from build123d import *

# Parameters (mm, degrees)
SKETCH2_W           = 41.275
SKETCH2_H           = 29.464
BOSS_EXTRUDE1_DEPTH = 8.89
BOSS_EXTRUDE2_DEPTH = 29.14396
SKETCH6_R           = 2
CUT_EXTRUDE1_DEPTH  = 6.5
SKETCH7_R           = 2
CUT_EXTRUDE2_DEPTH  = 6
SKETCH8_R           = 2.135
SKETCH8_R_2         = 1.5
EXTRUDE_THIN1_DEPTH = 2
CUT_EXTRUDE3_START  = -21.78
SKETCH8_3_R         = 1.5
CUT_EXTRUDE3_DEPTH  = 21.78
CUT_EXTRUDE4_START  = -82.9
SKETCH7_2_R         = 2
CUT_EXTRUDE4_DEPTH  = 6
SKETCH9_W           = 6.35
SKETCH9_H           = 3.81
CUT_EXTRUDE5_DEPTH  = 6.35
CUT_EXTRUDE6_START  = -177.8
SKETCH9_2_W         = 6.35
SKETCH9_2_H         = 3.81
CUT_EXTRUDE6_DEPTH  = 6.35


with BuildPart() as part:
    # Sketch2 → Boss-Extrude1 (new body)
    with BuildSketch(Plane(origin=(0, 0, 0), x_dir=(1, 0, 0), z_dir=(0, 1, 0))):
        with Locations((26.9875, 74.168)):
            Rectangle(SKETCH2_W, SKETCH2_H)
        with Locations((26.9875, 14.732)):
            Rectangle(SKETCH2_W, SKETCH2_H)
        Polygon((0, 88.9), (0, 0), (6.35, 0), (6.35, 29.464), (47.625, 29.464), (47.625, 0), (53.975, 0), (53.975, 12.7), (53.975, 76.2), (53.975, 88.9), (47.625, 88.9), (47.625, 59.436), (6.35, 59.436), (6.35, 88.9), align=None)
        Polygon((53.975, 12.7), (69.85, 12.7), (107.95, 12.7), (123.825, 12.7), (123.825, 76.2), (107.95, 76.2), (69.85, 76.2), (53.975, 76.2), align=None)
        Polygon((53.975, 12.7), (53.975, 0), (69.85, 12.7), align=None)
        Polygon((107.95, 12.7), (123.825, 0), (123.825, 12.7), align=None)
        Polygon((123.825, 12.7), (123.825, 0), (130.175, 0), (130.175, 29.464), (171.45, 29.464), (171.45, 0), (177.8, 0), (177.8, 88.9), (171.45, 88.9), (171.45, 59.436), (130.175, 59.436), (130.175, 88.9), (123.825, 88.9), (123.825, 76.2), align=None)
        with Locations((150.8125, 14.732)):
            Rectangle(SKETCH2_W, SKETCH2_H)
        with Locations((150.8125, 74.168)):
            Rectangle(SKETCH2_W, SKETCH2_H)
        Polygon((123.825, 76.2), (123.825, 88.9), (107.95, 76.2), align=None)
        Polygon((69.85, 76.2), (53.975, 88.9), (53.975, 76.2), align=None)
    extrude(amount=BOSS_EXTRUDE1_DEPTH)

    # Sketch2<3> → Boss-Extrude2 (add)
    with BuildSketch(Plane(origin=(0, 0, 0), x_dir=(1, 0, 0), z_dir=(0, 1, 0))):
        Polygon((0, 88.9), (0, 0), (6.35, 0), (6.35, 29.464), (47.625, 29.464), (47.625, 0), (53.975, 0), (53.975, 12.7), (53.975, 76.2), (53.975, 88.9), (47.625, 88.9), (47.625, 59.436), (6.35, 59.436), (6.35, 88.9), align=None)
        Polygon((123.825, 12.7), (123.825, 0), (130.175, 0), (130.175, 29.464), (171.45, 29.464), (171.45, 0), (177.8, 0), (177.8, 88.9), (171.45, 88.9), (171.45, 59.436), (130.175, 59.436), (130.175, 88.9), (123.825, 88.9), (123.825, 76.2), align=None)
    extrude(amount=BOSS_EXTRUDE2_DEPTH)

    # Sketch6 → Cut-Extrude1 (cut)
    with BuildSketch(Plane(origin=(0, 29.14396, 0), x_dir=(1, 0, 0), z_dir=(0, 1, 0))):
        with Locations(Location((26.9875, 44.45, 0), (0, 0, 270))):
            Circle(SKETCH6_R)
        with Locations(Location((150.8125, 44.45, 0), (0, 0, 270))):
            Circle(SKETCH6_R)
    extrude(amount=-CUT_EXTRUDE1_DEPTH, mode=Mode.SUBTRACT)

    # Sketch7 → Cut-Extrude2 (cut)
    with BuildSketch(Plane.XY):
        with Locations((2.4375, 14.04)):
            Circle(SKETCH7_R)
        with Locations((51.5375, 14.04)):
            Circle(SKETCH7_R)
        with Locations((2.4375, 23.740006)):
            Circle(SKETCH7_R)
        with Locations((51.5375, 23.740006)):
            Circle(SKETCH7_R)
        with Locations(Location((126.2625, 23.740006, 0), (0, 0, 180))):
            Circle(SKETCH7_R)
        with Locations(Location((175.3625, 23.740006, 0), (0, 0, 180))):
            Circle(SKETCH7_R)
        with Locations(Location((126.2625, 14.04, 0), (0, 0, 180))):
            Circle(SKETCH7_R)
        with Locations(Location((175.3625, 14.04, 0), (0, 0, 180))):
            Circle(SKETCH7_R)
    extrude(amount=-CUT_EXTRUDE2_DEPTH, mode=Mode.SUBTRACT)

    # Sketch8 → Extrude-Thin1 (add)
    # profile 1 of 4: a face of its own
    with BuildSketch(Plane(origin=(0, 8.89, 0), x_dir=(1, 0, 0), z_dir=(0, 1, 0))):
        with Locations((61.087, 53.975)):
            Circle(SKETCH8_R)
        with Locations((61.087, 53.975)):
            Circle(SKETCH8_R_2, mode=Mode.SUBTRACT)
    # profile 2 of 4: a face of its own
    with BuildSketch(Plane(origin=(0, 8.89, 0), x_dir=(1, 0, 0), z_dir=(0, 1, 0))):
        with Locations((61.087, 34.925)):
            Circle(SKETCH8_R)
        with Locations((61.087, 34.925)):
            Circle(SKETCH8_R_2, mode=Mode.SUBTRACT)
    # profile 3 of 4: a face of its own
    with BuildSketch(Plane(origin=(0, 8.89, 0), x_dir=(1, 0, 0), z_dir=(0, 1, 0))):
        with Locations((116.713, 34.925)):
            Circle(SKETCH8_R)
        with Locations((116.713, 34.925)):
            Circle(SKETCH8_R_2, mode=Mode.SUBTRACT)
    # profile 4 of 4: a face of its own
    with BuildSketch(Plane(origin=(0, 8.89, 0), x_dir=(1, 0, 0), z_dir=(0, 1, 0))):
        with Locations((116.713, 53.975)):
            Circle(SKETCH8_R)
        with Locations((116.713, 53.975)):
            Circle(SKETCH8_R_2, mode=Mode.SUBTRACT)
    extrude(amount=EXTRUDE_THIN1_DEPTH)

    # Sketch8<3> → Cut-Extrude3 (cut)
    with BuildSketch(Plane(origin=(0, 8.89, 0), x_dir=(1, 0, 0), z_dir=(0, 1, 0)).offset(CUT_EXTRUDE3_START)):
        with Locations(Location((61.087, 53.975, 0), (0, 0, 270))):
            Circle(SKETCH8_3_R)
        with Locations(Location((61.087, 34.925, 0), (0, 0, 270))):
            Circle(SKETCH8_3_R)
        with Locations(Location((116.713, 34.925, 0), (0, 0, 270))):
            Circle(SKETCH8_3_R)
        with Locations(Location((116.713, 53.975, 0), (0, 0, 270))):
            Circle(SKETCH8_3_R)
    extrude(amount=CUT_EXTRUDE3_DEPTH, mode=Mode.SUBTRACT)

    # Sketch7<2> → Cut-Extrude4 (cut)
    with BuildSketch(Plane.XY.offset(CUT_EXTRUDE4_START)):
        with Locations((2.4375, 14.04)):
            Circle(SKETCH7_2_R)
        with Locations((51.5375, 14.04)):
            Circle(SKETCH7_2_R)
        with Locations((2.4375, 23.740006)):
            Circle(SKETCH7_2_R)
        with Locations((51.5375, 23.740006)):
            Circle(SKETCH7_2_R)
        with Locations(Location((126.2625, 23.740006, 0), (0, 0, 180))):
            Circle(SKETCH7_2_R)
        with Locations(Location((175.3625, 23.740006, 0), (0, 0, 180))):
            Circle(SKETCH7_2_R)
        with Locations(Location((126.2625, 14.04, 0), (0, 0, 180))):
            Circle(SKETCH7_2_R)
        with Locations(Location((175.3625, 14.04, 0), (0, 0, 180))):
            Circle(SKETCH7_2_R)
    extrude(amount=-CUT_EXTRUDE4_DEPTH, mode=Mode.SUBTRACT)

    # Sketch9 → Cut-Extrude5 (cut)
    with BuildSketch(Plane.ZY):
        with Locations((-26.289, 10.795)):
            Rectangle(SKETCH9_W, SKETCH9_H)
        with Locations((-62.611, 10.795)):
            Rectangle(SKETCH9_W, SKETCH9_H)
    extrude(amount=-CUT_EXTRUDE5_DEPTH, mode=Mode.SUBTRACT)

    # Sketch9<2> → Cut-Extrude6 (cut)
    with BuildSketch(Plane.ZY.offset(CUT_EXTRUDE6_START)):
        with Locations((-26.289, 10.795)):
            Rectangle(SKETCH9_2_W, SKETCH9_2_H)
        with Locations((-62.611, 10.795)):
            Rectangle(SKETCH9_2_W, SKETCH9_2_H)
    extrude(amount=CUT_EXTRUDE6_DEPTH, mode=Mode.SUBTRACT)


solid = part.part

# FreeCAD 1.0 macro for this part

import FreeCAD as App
import Part
import Sketcher

V = App.Vector
Q = App.Units.Quantity

doc = App.newDocument("Part")
body = doc.addObject("PartDesign::Body", "Body")

# Sketch on XZ plane
sketch1 = body.newObject("Sketcher::SketchObject", "Sketch")
sketch1.AttachmentSupport = (doc.getObject("XZ_Plane"), [""])
sketch1.MapMode = "FlatFace"
sketch1.addGeometry(Part.LineSegment(V(0, -89, 0), V(0, 0, 0)), False)
sketch1.addGeometry(Part.LineSegment(V(0, 0, 0), V(54, 0, 0)), False)
sketch1.addGeometry(Part.LineSegment(V(54, 0, 0), V(70, -13, 0)), False)
sketch1.addGeometry(Part.LineSegment(V(70, -13, 0), V(108, -13, 0)), False)
sketch1.addGeometry(Part.LineSegment(V(108, -13, 0), V(124, 0, 0)), False)
sketch1.addGeometry(Part.LineSegment(V(124, 0, 0), V(178, 0, 0)), False)
sketch1.addGeometry(Part.LineSegment(V(178, 0, 0), V(178, -89, 0)), False)
sketch1.addGeometry(Part.LineSegment(V(178, -89, 0), V(124, -89, 0)), False)
sketch1.addGeometry(Part.LineSegment(V(124, -89, 0), V(108, -76, 0)), False)
sketch1.addGeometry(Part.LineSegment(V(108, -76, 0), V(70, -76, 0)), False)
sketch1.addGeometry(Part.LineSegment(V(70, -76, 0), V(54, -89, 0)), False)
sketch1.addGeometry(Part.LineSegment(V(54, -89, 0), V(0, -89, 0)), False)
sketch1.addConstraint(Sketcher.Constraint("Coincident", 0, 2, 1, 1))
sketch1.addConstraint(Sketcher.Constraint("Coincident", 1, 2, 2, 1))
sketch1.addConstraint(Sketcher.Constraint("Coincident", 2, 2, 3, 1))
sketch1.addConstraint(Sketcher.Constraint("Coincident", 3, 2, 4, 1))
sketch1.addConstraint(Sketcher.Constraint("Coincident", 4, 2, 5, 1))
sketch1.addConstraint(Sketcher.Constraint("Coincident", 5, 2, 6, 1))
sketch1.addConstraint(Sketcher.Constraint("Coincident", 6, 2, 7, 1))
sketch1.addConstraint(Sketcher.Constraint("Coincident", 7, 2, 8, 1))
sketch1.addConstraint(Sketcher.Constraint("Coincident", 8, 2, 9, 1))
sketch1.addConstraint(Sketcher.Constraint("Coincident", 9, 2, 10, 1))
sketch1.addConstraint(Sketcher.Constraint("Coincident", 10, 2, 11, 1))
sketch1.addConstraint(Sketcher.Constraint("Coincident", 11, 2, 0, 1))
sketch1.addConstraint(Sketcher.Constraint("Vertical", 0))
sketch1.addConstraint(Sketcher.Constraint("Horizontal", 1))
sketch1.addConstraint(Sketcher.Constraint("Horizontal", 3))
sketch1.addConstraint(Sketcher.Constraint("Horizontal", 5))
sketch1.addConstraint(Sketcher.Constraint("Vertical", 6))
sketch1.addConstraint(Sketcher.Constraint("Horizontal", 7))
sketch1.addConstraint(Sketcher.Constraint("Horizontal", 9))
sketch1.addConstraint(Sketcher.Constraint("Horizontal", 11))
sketch1.addConstraint(Sketcher.Constraint("Coincident", 0, 2, -1, 1))
sketch1.addConstraint(Sketcher.Constraint("PointOnObject", 4, 2, -1))
sketch1.addConstraint(Sketcher.Constraint("Parallel", 2, 8))
sketch1.addConstraint(Sketcher.Constraint("Parallel", 4, 10))
sketch1.addConstraint(Sketcher.Constraint("Horizontal", 7, 2, 10, 2))
sketch1.addConstraint(Sketcher.Constraint("Vertical", 4, 2, 7, 2))
sketch1.addConstraint(Sketcher.Constraint("Vertical", 3, 2, 8, 2))
sketch1.addConstraint(Sketcher.Constraint("Vertical", 2, 2, 9, 2))
sketch1.addConstraint(Sketcher.Constraint("Vertical", 1, 2, 10, 2))
sketch1.addConstraint(Sketcher.Constraint("Equal", 1, 5))
sketch1.addConstraint(Sketcher.Constraint("DistanceX", 3, 1, 3, 2, Q("1.5 in")))
sketch1.addConstraint(Sketcher.Constraint("DistanceY", 0, 1, 0, 2, Q("3.5 in")))
sketch1.addConstraint(Sketcher.Constraint("DistanceX", -1, 1, 5, 2, Q("7 in")))
sketch1.addConstraint(Sketcher.Constraint("DistanceY", 8, 2, -1, 1, Q("3 in")))
sketch1.addConstraint(Sketcher.Constraint("DistanceX", 1, 1, 1, 2, Q("2.125 in")))
pad1 = body.newObject("PartDesign::Pad", "Pad")
pad1.Profile = sketch1
pad1.Length = Q("0.35 in")
pad1.Reversed = True

# Sketch on XZ plane
sketch2 = body.newObject("Sketcher::SketchObject", "Sketch001")
sketch2.AttachmentSupport = (doc.getObject("XZ_Plane"), [""])
sketch2.MapMode = "FlatFace"
sketch2.addGeometry(Part.LineSegment(V(0, -89, 0), V(0, 0, 0)), False)
sketch2.addGeometry(Part.LineSegment(V(0, 0, 0), V(6, 0, 0)), False)
sketch2.addGeometry(Part.LineSegment(V(6, 0, 0), V(6, -29, 0)), False)
sketch2.addGeometry(Part.LineSegment(V(6, -29, 0), V(48, -29, 0)), False)
sketch2.addGeometry(Part.LineSegment(V(48, -29, 0), V(48, 0, 0)), False)
sketch2.addGeometry(Part.LineSegment(V(48, 0, 0), V(54, 0, 0)), False)
sketch2.addGeometry(Part.LineSegment(V(54, 0, 0), V(54, -89, 0)), False)
sketch2.addGeometry(Part.LineSegment(V(54, -89, 0), V(48, -89, 0)), False)
sketch2.addGeometry(Part.LineSegment(V(48, -89, 0), V(48, -59, 0)), False)
sketch2.addGeometry(Part.LineSegment(V(48, -59, 0), V(6, -59, 0)), False)
sketch2.addGeometry(Part.LineSegment(V(6, -59, 0), V(6, -89, 0)), False)
sketch2.addGeometry(Part.LineSegment(V(6, -89, 0), V(0, -89, 0)), False)
sketch2.addGeometry(Part.LineSegment(V(124, 0, 0), V(130, 0, 0)), False)
sketch2.addGeometry(Part.LineSegment(V(130, 0, 0), V(130, -29, 0)), False)
sketch2.addGeometry(Part.LineSegment(V(130, -29, 0), V(171, -29, 0)), False)
sketch2.addGeometry(Part.LineSegment(V(171, -29, 0), V(171, 0, 0)), False)
sketch2.addGeometry(Part.LineSegment(V(171, 0, 0), V(178, 0, 0)), False)
sketch2.addGeometry(Part.LineSegment(V(178, 0, 0), V(178, -89, 0)), False)
sketch2.addGeometry(Part.LineSegment(V(178, -89, 0), V(171, -89, 0)), False)
sketch2.addGeometry(Part.LineSegment(V(171, -89, 0), V(171, -59, 0)), False)
sketch2.addGeometry(Part.LineSegment(V(171, -59, 0), V(130, -59, 0)), False)
sketch2.addGeometry(Part.LineSegment(V(130, -59, 0), V(130, -89, 0)), False)
sketch2.addGeometry(Part.LineSegment(V(130, -89, 0), V(124, -89, 0)), False)
sketch2.addGeometry(Part.LineSegment(V(124, -89, 0), V(124, 0, 0)), False)
sketch2.addConstraint(Sketcher.Constraint("Coincident", 0, 2, 1, 1))
sketch2.addConstraint(Sketcher.Constraint("Coincident", 1, 2, 2, 1))
sketch2.addConstraint(Sketcher.Constraint("Coincident", 2, 2, 3, 1))
sketch2.addConstraint(Sketcher.Constraint("Coincident", 3, 2, 4, 1))
sketch2.addConstraint(Sketcher.Constraint("Coincident", 4, 2, 5, 1))
sketch2.addConstraint(Sketcher.Constraint("Coincident", 5, 2, 6, 1))
sketch2.addConstraint(Sketcher.Constraint("Coincident", 6, 2, 7, 1))
sketch2.addConstraint(Sketcher.Constraint("Coincident", 7, 2, 8, 1))
sketch2.addConstraint(Sketcher.Constraint("Coincident", 8, 2, 9, 1))
sketch2.addConstraint(Sketcher.Constraint("Coincident", 9, 2, 10, 1))
sketch2.addConstraint(Sketcher.Constraint("Coincident", 10, 2, 11, 1))
sketch2.addConstraint(Sketcher.Constraint("Coincident", 11, 2, 0, 1))
sketch2.addConstraint(Sketcher.Constraint("Coincident", 12, 2, 13, 1))
sketch2.addConstraint(Sketcher.Constraint("Coincident", 13, 2, 14, 1))
sketch2.addConstraint(Sketcher.Constraint("Coincident", 14, 2, 15, 1))
sketch2.addConstraint(Sketcher.Constraint("Coincident", 15, 2, 16, 1))
sketch2.addConstraint(Sketcher.Constraint("Coincident", 16, 2, 17, 1))
sketch2.addConstraint(Sketcher.Constraint("Coincident", 17, 2, 18, 1))
sketch2.addConstraint(Sketcher.Constraint("Coincident", 18, 2, 19, 1))
sketch2.addConstraint(Sketcher.Constraint("Coincident", 19, 2, 20, 1))
sketch2.addConstraint(Sketcher.Constraint("Coincident", 20, 2, 21, 1))
sketch2.addConstraint(Sketcher.Constraint("Coincident", 21, 2, 22, 1))
sketch2.addConstraint(Sketcher.Constraint("Coincident", 22, 2, 23, 1))
sketch2.addConstraint(Sketcher.Constraint("Coincident", 23, 2, 12, 1))
sketch2.addConstraint(Sketcher.Constraint("Vertical", 0))
sketch2.addConstraint(Sketcher.Constraint("Horizontal", 1))
sketch2.addConstraint(Sketcher.Constraint("Vertical", 2))
sketch2.addConstraint(Sketcher.Constraint("Horizontal", 3))
sketch2.addConstraint(Sketcher.Constraint("Vertical", 4))
sketch2.addConstraint(Sketcher.Constraint("Horizontal", 5))
sketch2.addConstraint(Sketcher.Constraint("Vertical", 6))
sketch2.addConstraint(Sketcher.Constraint("Horizontal", 7))
sketch2.addConstraint(Sketcher.Constraint("Vertical", 8))
sketch2.addConstraint(Sketcher.Constraint("Horizontal", 9))
sketch2.addConstraint(Sketcher.Constraint("Vertical", 10))
sketch2.addConstraint(Sketcher.Constraint("Horizontal", 11))
sketch2.addConstraint(Sketcher.Constraint("Horizontal", 12))
sketch2.addConstraint(Sketcher.Constraint("Vertical", 13))
sketch2.addConstraint(Sketcher.Constraint("Horizontal", 14))
sketch2.addConstraint(Sketcher.Constraint("Vertical", 15))
sketch2.addConstraint(Sketcher.Constraint("Horizontal", 16))
sketch2.addConstraint(Sketcher.Constraint("Vertical", 17))
sketch2.addConstraint(Sketcher.Constraint("Horizontal", 18))
sketch2.addConstraint(Sketcher.Constraint("Vertical", 19))
sketch2.addConstraint(Sketcher.Constraint("Horizontal", 20))
sketch2.addConstraint(Sketcher.Constraint("Vertical", 21))
sketch2.addConstraint(Sketcher.Constraint("Horizontal", 22))
sketch2.addConstraint(Sketcher.Constraint("Vertical", 23))
sketch2.addConstraint(Sketcher.Constraint("Coincident", 0, 2, -1, 1))
sketch2.addConstraint(Sketcher.Constraint("PointOnObject", 4, 2, -1))
sketch2.addConstraint(Sketcher.Constraint("PointOnObject", 12, 2, -1))
sketch2.addConstraint(Sketcher.Constraint("PointOnObject", 15, 2, -1))
sketch2.addConstraint(Sketcher.Constraint("Horizontal", 7, 2, 10, 2))
sketch2.addConstraint(Sketcher.Constraint("Horizontal", 3, 2, 13, 2))
sketch2.addConstraint(Sketcher.Constraint("Horizontal", 11, 2, 17, 2))
sketch2.addConstraint(Sketcher.Constraint("Horizontal", 9, 2, 19, 2))
sketch2.addConstraint(Sketcher.Constraint("Horizontal", 18, 2, 21, 2))
sketch2.addConstraint(Sketcher.Constraint("Vertical", 4, 2, 7, 2))
sketch2.addConstraint(Sketcher.Constraint("Vertical", 2, 2, 9, 2))
sketch2.addConstraint(Sketcher.Constraint("Vertical", 15, 2, 18, 2))
sketch2.addConstraint(Sketcher.Constraint("Vertical", 13, 2, 20, 2))
sketch2.addConstraint(Sketcher.Constraint("Equal", 1, 5))
sketch2.addConstraint(Sketcher.Constraint("Equal", 11, 12))
sketch2.addConstraint(Sketcher.Constraint("Equal", 9, 14))
sketch2.addConstraint(Sketcher.Constraint("Equal", 12, 16))
sketch2.addConstraint(Sketcher.Constraint("Equal", 4, 8))
sketch2.addConstraint(Sketcher.Constraint("DistanceY", 0, 1, 0, 2, Q("3.5 in")))
sketch2.addConstraint(Sketcher.Constraint("DistanceX", -1, 1, 16, 2, Q("7 in")))
sketch2.addConstraint(Sketcher.Constraint("DistanceX", 5, 2, 12, 2, Q("3 in")))
sketch2.addConstraint(Sketcher.Constraint("DistanceX", 1, 1, 1, 2, Q("0.25 in")))
sketch2.addConstraint(Sketcher.Constraint("DistanceY", 2, 2, 2, 1, Q("1.16 in")))
pad2 = body.newObject("PartDesign::Pad", "Pad001")
pad2.Profile = sketch2
pad2.Length = Q("1.1474 in")
pad2.Reversed = True

# Sketch on XZ plane
sketch3 = body.newObject("Sketcher::SketchObject", "Sketch002")
sketch3.AttachmentSupport = (doc.getObject("XZ_Plane"), [""])
sketch3.MapMode = "FlatFace"
sketch3.AttachmentOffset = App.Placement(V(0, 0, -1.1474 * 25.4), App.Rotation())
sketch3.addGeometry(Part.Circle(V(27, -44.5, 0), V(0, 0, 1), 2), False)
sketch3.addGeometry(Part.Circle(V(150.8, -44.5, 0), V(0, 0, 1), 2), False)
sketch3.addConstraint(Sketcher.Constraint("Equal", 0, 1))
sketch3.addConstraint(Sketcher.Constraint("Horizontal", 0, 3, 1, 3))
sketch3.addConstraint(Sketcher.Constraint("Diameter", 0, Q("4 mm")))
sketch3.addConstraint(Sketcher.Constraint("DistanceY", 0, 3, -1, 1, Q("1.75 in")))
sketch3.addConstraint(Sketcher.Constraint("DistanceX", -1, 1, 0, 3, Q("1.0625 in")))
sketch3.addConstraint(Sketcher.Constraint("DistanceX", -1, 1, 1, 3, Q("5.9375 in")))
pocket1 = body.newObject("PartDesign::Pocket", "Pocket")
pocket1.Profile = sketch3
pocket1.Length = 6.5
pocket1.Reversed = True

# Sketch on XY plane
sketch4 = body.newObject("Sketcher::SketchObject", "Sketch003")
sketch4.AttachmentSupport = (doc.getObject("XY_Plane"), [""])
sketch4.MapMode = "FlatFace"
sketch4.addGeometry(Part.Circle(V(2.4, 14, 0), V(0, 0, 1), 2), False)
sketch4.addGeometry(Part.Circle(V(51.5, 14, 0), V(0, 0, 1), 2), False)
sketch4.addGeometry(Part.Circle(V(2.4, 23.7, 0), V(0, 0, 1), 2), False)
sketch4.addGeometry(Part.Circle(V(51.5, 23.7, 0), V(0, 0, 1), 2), False)
sketch4.addGeometry(Part.Circle(V(126.3, 23.7, 0), V(0, 0, 1), 2), False)
sketch4.addGeometry(Part.Circle(V(175.4, 23.7, 0), V(0, 0, 1), 2), False)
sketch4.addGeometry(Part.Circle(V(126.3, 14, 0), V(0, 0, 1), 2), False)
sketch4.addGeometry(Part.Circle(V(175.4, 14, 0), V(0, 0, 1), 2), False)
sketch4.addConstraint(Sketcher.Constraint("Equal", 0, 1))
sketch4.addConstraint(Sketcher.Constraint("Equal", 1, 2))
sketch4.addConstraint(Sketcher.Constraint("Equal", 2, 3))
sketch4.addConstraint(Sketcher.Constraint("Equal", 3, 4))
sketch4.addConstraint(Sketcher.Constraint("Equal", 4, 5))
sketch4.addConstraint(Sketcher.Constraint("Equal", 5, 6))
sketch4.addConstraint(Sketcher.Constraint("Equal", 6, 7))
sketch4.addConstraint(Sketcher.Constraint("Horizontal", 0, 3, 1, 3))
sketch4.addConstraint(Sketcher.Constraint("Horizontal", 2, 3, 3, 3))
sketch4.addConstraint(Sketcher.Constraint("Horizontal", 3, 3, 4, 3))
sketch4.addConstraint(Sketcher.Constraint("Horizontal", 4, 3, 5, 3))
sketch4.addConstraint(Sketcher.Constraint("Horizontal", 1, 3, 6, 3))
sketch4.addConstraint(Sketcher.Constraint("Horizontal", 6, 3, 7, 3))
sketch4.addConstraint(Sketcher.Constraint("Vertical", 0, 3, 2, 3))
sketch4.addConstraint(Sketcher.Constraint("Vertical", 1, 3, 3, 3))
sketch4.addConstraint(Sketcher.Constraint("Vertical", 4, 3, 6, 3))
sketch4.addConstraint(Sketcher.Constraint("Vertical", 5, 3, 7, 3))
sketch4.addConstraint(Sketcher.Constraint("Diameter", 0, Q("4 mm")))
sketch4.addConstraint(Sketcher.Constraint("DistanceX", 2, 3, 4, 3, Q("4.875 in")))
sketch4.addConstraint(Sketcher.Constraint("DistanceX", 3, 3, 5, 3, Q("4.875 in")))
sketch4.addConstraint(Sketcher.Constraint("DistanceX", -1, 1, 0, 3, Q("2.4375 mm")))
sketch4.addConstraint(Sketcher.Constraint("DistanceY", -1, 1, 0, 3, Q("14.04 mm")))
sketch4.addConstraint(Sketcher.Constraint("DistanceX", -1, 1, 1, 3, Q("51.5375 mm")))
sketch4.addConstraint(Sketcher.Constraint("DistanceY", -1, 1, 2, 3, Q("23.740006 mm")))
pocket2 = body.newObject("PartDesign::Pocket", "Pocket001")
pocket2.Profile = sketch4
pocket2.Length = 6

# Sketch on XZ plane
sketch5 = body.newObject("Sketcher::SketchObject", "Sketch004")
sketch5.AttachmentSupport = (doc.getObject("XZ_Plane"), [""])
sketch5.MapMode = "FlatFace"
sketch5.AttachmentOffset = App.Placement(V(0, 0, -0.35 * 25.4), App.Rotation())
sketch5.addGeometry(Part.Circle(V(61.1, -54, 0), V(0, 0, 1), 2.1), False)
sketch5.addGeometry(Part.Circle(V(61.1, -54, 0), V(0, 0, 1), 1.5), False)
sketch5.addGeometry(Part.Circle(V(61.1, -34.9, 0), V(0, 0, 1), 2.1), False)
sketch5.addGeometry(Part.Circle(V(61.1, -34.9, 0), V(0, 0, 1), 1.5), False)
sketch5.addGeometry(Part.Circle(V(116.7, -34.9, 0), V(0, 0, 1), 2.1), False)
sketch5.addGeometry(Part.Circle(V(116.7, -34.9, 0), V(0, 0, 1), 1.5), False)
sketch5.addGeometry(Part.Circle(V(116.7, -54, 0), V(0, 0, 1), 2.1), False)
sketch5.addGeometry(Part.Circle(V(116.7, -54, 0), V(0, 0, 1), 1.5), False)
sketch5.addConstraint(Sketcher.Constraint("Coincident", 1, 3, 0, 3))
sketch5.addConstraint(Sketcher.Constraint("Coincident", 3, 3, 2, 3))
sketch5.addConstraint(Sketcher.Constraint("Coincident", 5, 3, 4, 3))
sketch5.addConstraint(Sketcher.Constraint("Coincident", 7, 3, 6, 3))
sketch5.addConstraint(Sketcher.Constraint("Equal", 0, 2))
sketch5.addConstraint(Sketcher.Constraint("Equal", 1, 3))
sketch5.addConstraint(Sketcher.Constraint("Equal", 2, 4))
sketch5.addConstraint(Sketcher.Constraint("Equal", 3, 5))
sketch5.addConstraint(Sketcher.Constraint("Equal", 4, 6))
sketch5.addConstraint(Sketcher.Constraint("Equal", 5, 7))
sketch5.addConstraint(Sketcher.Constraint("Horizontal", 3, 3, 4, 3))
sketch5.addConstraint(Sketcher.Constraint("Horizontal", 1, 3, 6, 3))
sketch5.addConstraint(Sketcher.Constraint("Vertical", 1, 3, 2, 3))
sketch5.addConstraint(Sketcher.Constraint("Vertical", 5, 3, 6, 3))
sketch5.addConstraint(Sketcher.Constraint("Diameter", 0, Q("4.27 mm")))
sketch5.addConstraint(Sketcher.Constraint("Diameter", 1, Q("3 mm")))
sketch5.addConstraint(Sketcher.Constraint("DistanceY", 0, 3, 2, 3, Q("0.75 in")))
sketch5.addConstraint(Sketcher.Constraint("DistanceX", 2, 3, 4, 3, Q("2.19 in")))
sketch5.addConstraint(Sketcher.Constraint("DistanceX", -1, 1, 0, 3, Q("2.405 in")))
sketch5.addConstraint(Sketcher.Constraint("DistanceY", 0, 3, -1, 1, Q("2.125 in")))
pad3 = body.newObject("PartDesign::Pad", "Pad002")
pad3.Profile = sketch5
pad3.Length = 2
pad3.Reversed = True

# Sketch on XZ plane
sketch6 = body.newObject("Sketcher::SketchObject", "Sketch005")
sketch6.AttachmentSupport = (doc.getObject("XZ_Plane"), [""])
sketch6.MapMode = "FlatFace"
sketch6.AttachmentOffset = App.Placement(V(0, 0, 12.89), App.Rotation())
sketch6.addGeometry(Part.Circle(V(61.1, -54, 0), V(0, 0, 1), 1.5), False)
sketch6.addGeometry(Part.Circle(V(61.1, -34.9, 0), V(0, 0, 1), 1.5), False)
sketch6.addGeometry(Part.Circle(V(116.7, -34.9, 0), V(0, 0, 1), 1.5), False)
sketch6.addGeometry(Part.Circle(V(116.7, -54, 0), V(0, 0, 1), 1.5), False)
sketch6.addConstraint(Sketcher.Constraint("Equal", 0, 1))
sketch6.addConstraint(Sketcher.Constraint("Equal", 1, 2))
sketch6.addConstraint(Sketcher.Constraint("Equal", 2, 3))
sketch6.addConstraint(Sketcher.Constraint("Horizontal", 1, 3, 2, 3))
sketch6.addConstraint(Sketcher.Constraint("Horizontal", 0, 3, 3, 3))
sketch6.addConstraint(Sketcher.Constraint("Vertical", 0, 3, 1, 3))
sketch6.addConstraint(Sketcher.Constraint("Vertical", 2, 3, 3, 3))
sketch6.addConstraint(Sketcher.Constraint("Diameter", 0, Q("3 mm")))
sketch6.addConstraint(Sketcher.Constraint("DistanceY", 0, 3, 1, 3, Q("0.75 in")))
sketch6.addConstraint(Sketcher.Constraint("DistanceX", 1, 3, 2, 3, Q("2.19 in")))
sketch6.addConstraint(Sketcher.Constraint("DistanceX", -1, 1, 0, 3, Q("2.405 in")))
sketch6.addConstraint(Sketcher.Constraint("DistanceY", 0, 3, -1, 1, Q("2.125 in")))
pocket3 = body.newObject("PartDesign::Pocket", "Pocket002")
pocket3.Profile = sketch6
pocket3.Length = 21.78

# Sketch on XY plane
sketch7 = body.newObject("Sketcher::SketchObject", "Sketch006")
sketch7.AttachmentSupport = (doc.getObject("XY_Plane"), [""])
sketch7.MapMode = "FlatFace"
sketch7.AttachmentOffset = App.Placement(V(0, 0, -82.9), App.Rotation())
sketch7.addGeometry(Part.Circle(V(2.4, 14, 0), V(0, 0, 1), 2), False)
sketch7.addGeometry(Part.Circle(V(51.5, 14, 0), V(0, 0, 1), 2), False)
sketch7.addGeometry(Part.Circle(V(2.4, 23.7, 0), V(0, 0, 1), 2), False)
sketch7.addGeometry(Part.Circle(V(51.5, 23.7, 0), V(0, 0, 1), 2), False)
sketch7.addGeometry(Part.Circle(V(126.3, 23.7, 0), V(0, 0, 1), 2), False)
sketch7.addGeometry(Part.Circle(V(175.4, 23.7, 0), V(0, 0, 1), 2), False)
sketch7.addGeometry(Part.Circle(V(126.3, 14, 0), V(0, 0, 1), 2), False)
sketch7.addGeometry(Part.Circle(V(175.4, 14, 0), V(0, 0, 1), 2), False)
sketch7.addConstraint(Sketcher.Constraint("Equal", 0, 1))
sketch7.addConstraint(Sketcher.Constraint("Equal", 1, 2))
sketch7.addConstraint(Sketcher.Constraint("Equal", 2, 3))
sketch7.addConstraint(Sketcher.Constraint("Equal", 3, 4))
sketch7.addConstraint(Sketcher.Constraint("Equal", 4, 5))
sketch7.addConstraint(Sketcher.Constraint("Equal", 5, 6))
sketch7.addConstraint(Sketcher.Constraint("Equal", 6, 7))
sketch7.addConstraint(Sketcher.Constraint("Horizontal", 0, 3, 1, 3))
sketch7.addConstraint(Sketcher.Constraint("Horizontal", 2, 3, 3, 3))
sketch7.addConstraint(Sketcher.Constraint("Horizontal", 3, 3, 4, 3))
sketch7.addConstraint(Sketcher.Constraint("Horizontal", 4, 3, 5, 3))
sketch7.addConstraint(Sketcher.Constraint("Horizontal", 1, 3, 6, 3))
sketch7.addConstraint(Sketcher.Constraint("Horizontal", 6, 3, 7, 3))
sketch7.addConstraint(Sketcher.Constraint("Vertical", 0, 3, 2, 3))
sketch7.addConstraint(Sketcher.Constraint("Vertical", 1, 3, 3, 3))
sketch7.addConstraint(Sketcher.Constraint("Vertical", 4, 3, 6, 3))
sketch7.addConstraint(Sketcher.Constraint("Vertical", 5, 3, 7, 3))
sketch7.addConstraint(Sketcher.Constraint("Diameter", 0, Q("4 mm")))
sketch7.addConstraint(Sketcher.Constraint("DistanceX", 2, 3, 4, 3, Q("4.875 in")))
sketch7.addConstraint(Sketcher.Constraint("DistanceX", 3, 3, 5, 3, Q("4.875 in")))
sketch7.addConstraint(Sketcher.Constraint("DistanceX", -1, 1, 0, 3, Q("2.4375 mm")))
sketch7.addConstraint(Sketcher.Constraint("DistanceY", -1, 1, 0, 3, Q("14.04 mm")))
sketch7.addConstraint(Sketcher.Constraint("DistanceX", -1, 1, 1, 3, Q("51.5375 mm")))
sketch7.addConstraint(Sketcher.Constraint("DistanceY", -1, 1, 2, 3, Q("23.740006 mm")))
pocket4 = body.newObject("PartDesign::Pocket", "Pocket003")
pocket4.Profile = sketch7
pocket4.Length = 6

# Sketch on YZ plane
sketch8 = body.newObject("Sketcher::SketchObject", "Sketch007")
sketch8.AttachmentSupport = (doc.getObject("YZ_Plane"), [""])
sketch8.MapMode = "FlatFace"
sketch8.addGeometry(Part.LineSegment(V(12.7, -29.5, 0), V(8.9, -29.5, 0)), False)
sketch8.addGeometry(Part.LineSegment(V(8.9, -29.5, 0), V(8.9, -23.1, 0)), False)
sketch8.addGeometry(Part.LineSegment(V(8.9, -23.1, 0), V(12.7, -23.1, 0)), False)
sketch8.addGeometry(Part.LineSegment(V(12.7, -23.1, 0), V(12.7, -29.5, 0)), False)
sketch8.addGeometry(Part.LineSegment(V(12.7, -65.8, 0), V(8.9, -65.8, 0)), False)
sketch8.addGeometry(Part.LineSegment(V(8.9, -65.8, 0), V(8.9, -59.4, 0)), False)
sketch8.addGeometry(Part.LineSegment(V(8.9, -59.4, 0), V(12.7, -59.4, 0)), False)
sketch8.addGeometry(Part.LineSegment(V(12.7, -59.4, 0), V(12.7, -65.8, 0)), False)
sketch8.addConstraint(Sketcher.Constraint("Coincident", 0, 2, 1, 1))
sketch8.addConstraint(Sketcher.Constraint("Coincident", 1, 2, 2, 1))
sketch8.addConstraint(Sketcher.Constraint("Coincident", 2, 2, 3, 1))
sketch8.addConstraint(Sketcher.Constraint("Coincident", 3, 2, 0, 1))
sketch8.addConstraint(Sketcher.Constraint("Coincident", 4, 2, 5, 1))
sketch8.addConstraint(Sketcher.Constraint("Coincident", 5, 2, 6, 1))
sketch8.addConstraint(Sketcher.Constraint("Coincident", 6, 2, 7, 1))
sketch8.addConstraint(Sketcher.Constraint("Coincident", 7, 2, 4, 1))
sketch8.addConstraint(Sketcher.Constraint("Horizontal", 0))
sketch8.addConstraint(Sketcher.Constraint("Vertical", 1))
sketch8.addConstraint(Sketcher.Constraint("Horizontal", 2))
sketch8.addConstraint(Sketcher.Constraint("Vertical", 3))
sketch8.addConstraint(Sketcher.Constraint("Horizontal", 4))
sketch8.addConstraint(Sketcher.Constraint("Vertical", 5))
sketch8.addConstraint(Sketcher.Constraint("Horizontal", 6))
sketch8.addConstraint(Sketcher.Constraint("Vertical", 7))
sketch8.addConstraint(Sketcher.Constraint("Vertical", 1, 2, 4, 2))
sketch8.addConstraint(Sketcher.Constraint("Vertical", 3, 2, 6, 2))
sketch8.addConstraint(Sketcher.Constraint("Equal", 3, 5))
sketch8.addConstraint(Sketcher.Constraint("DistanceX", 0, 2, 0, 1, Q("0.15 in")))
sketch8.addConstraint(Sketcher.Constraint("DistanceY", 1, 1, 1, 2, Q("0.25 in")))
sketch8.addConstraint(Sketcher.Constraint("DistanceX", -1, 1, 2, 2, Q("0.5 in")))
sketch8.addConstraint(Sketcher.Constraint("DistanceY", 0, 2, -1, 1, Q("1.16 in")))
sketch8.addConstraint(Sketcher.Constraint("DistanceY", 4, 2, -1, 1, Q("2.59 in")))
pocket5 = body.newObject("PartDesign::Pocket", "Pocket004")
pocket5.Profile = sketch8
pocket5.Length = Q("0.25 in")
pocket5.Reversed = True

# Sketch on YZ plane
sketch9 = body.newObject("Sketcher::SketchObject", "Sketch008")
sketch9.AttachmentSupport = (doc.getObject("YZ_Plane"), [""])
sketch9.MapMode = "FlatFace"
sketch9.AttachmentOffset = App.Placement(V(0, 0, 7 * 25.4), App.Rotation())
sketch9.addGeometry(Part.LineSegment(V(12.7, -29.5, 0), V(8.9, -29.5, 0)), False)
sketch9.addGeometry(Part.LineSegment(V(8.9, -29.5, 0), V(8.9, -23.1, 0)), False)
sketch9.addGeometry(Part.LineSegment(V(8.9, -23.1, 0), V(12.7, -23.1, 0)), False)
sketch9.addGeometry(Part.LineSegment(V(12.7, -23.1, 0), V(12.7, -29.5, 0)), False)
sketch9.addGeometry(Part.LineSegment(V(12.7, -65.8, 0), V(8.9, -65.8, 0)), False)
sketch9.addGeometry(Part.LineSegment(V(8.9, -65.8, 0), V(8.9, -59.4, 0)), False)
sketch9.addGeometry(Part.LineSegment(V(8.9, -59.4, 0), V(12.7, -59.4, 0)), False)
sketch9.addGeometry(Part.LineSegment(V(12.7, -59.4, 0), V(12.7, -65.8, 0)), False)
sketch9.addConstraint(Sketcher.Constraint("Coincident", 0, 2, 1, 1))
sketch9.addConstraint(Sketcher.Constraint("Coincident", 1, 2, 2, 1))
sketch9.addConstraint(Sketcher.Constraint("Coincident", 2, 2, 3, 1))
sketch9.addConstraint(Sketcher.Constraint("Coincident", 3, 2, 0, 1))
sketch9.addConstraint(Sketcher.Constraint("Coincident", 4, 2, 5, 1))
sketch9.addConstraint(Sketcher.Constraint("Coincident", 5, 2, 6, 1))
sketch9.addConstraint(Sketcher.Constraint("Coincident", 6, 2, 7, 1))
sketch9.addConstraint(Sketcher.Constraint("Coincident", 7, 2, 4, 1))
sketch9.addConstraint(Sketcher.Constraint("Horizontal", 0))
sketch9.addConstraint(Sketcher.Constraint("Vertical", 1))
sketch9.addConstraint(Sketcher.Constraint("Horizontal", 2))
sketch9.addConstraint(Sketcher.Constraint("Vertical", 3))
sketch9.addConstraint(Sketcher.Constraint("Horizontal", 4))
sketch9.addConstraint(Sketcher.Constraint("Vertical", 5))
sketch9.addConstraint(Sketcher.Constraint("Horizontal", 6))
sketch9.addConstraint(Sketcher.Constraint("Vertical", 7))
sketch9.addConstraint(Sketcher.Constraint("Vertical", 1, 2, 4, 2))
sketch9.addConstraint(Sketcher.Constraint("Vertical", 3, 2, 6, 2))
sketch9.addConstraint(Sketcher.Constraint("Equal", 3, 5))
sketch9.addConstraint(Sketcher.Constraint("DistanceX", 0, 2, 0, 1, Q("0.15 in")))
sketch9.addConstraint(Sketcher.Constraint("DistanceY", 1, 1, 1, 2, Q("0.25 in")))
sketch9.addConstraint(Sketcher.Constraint("DistanceX", -1, 1, 2, 2, Q("0.5 in")))
sketch9.addConstraint(Sketcher.Constraint("DistanceY", 0, 2, -1, 1, Q("1.16 in")))
sketch9.addConstraint(Sketcher.Constraint("DistanceY", 4, 2, -1, 1, Q("2.59 in")))
pocket6 = body.newObject("PartDesign::Pocket", "Pocket005")
pocket6.Profile = sketch9
pocket6.Length = Q("0.25 in")

doc.recompute()
